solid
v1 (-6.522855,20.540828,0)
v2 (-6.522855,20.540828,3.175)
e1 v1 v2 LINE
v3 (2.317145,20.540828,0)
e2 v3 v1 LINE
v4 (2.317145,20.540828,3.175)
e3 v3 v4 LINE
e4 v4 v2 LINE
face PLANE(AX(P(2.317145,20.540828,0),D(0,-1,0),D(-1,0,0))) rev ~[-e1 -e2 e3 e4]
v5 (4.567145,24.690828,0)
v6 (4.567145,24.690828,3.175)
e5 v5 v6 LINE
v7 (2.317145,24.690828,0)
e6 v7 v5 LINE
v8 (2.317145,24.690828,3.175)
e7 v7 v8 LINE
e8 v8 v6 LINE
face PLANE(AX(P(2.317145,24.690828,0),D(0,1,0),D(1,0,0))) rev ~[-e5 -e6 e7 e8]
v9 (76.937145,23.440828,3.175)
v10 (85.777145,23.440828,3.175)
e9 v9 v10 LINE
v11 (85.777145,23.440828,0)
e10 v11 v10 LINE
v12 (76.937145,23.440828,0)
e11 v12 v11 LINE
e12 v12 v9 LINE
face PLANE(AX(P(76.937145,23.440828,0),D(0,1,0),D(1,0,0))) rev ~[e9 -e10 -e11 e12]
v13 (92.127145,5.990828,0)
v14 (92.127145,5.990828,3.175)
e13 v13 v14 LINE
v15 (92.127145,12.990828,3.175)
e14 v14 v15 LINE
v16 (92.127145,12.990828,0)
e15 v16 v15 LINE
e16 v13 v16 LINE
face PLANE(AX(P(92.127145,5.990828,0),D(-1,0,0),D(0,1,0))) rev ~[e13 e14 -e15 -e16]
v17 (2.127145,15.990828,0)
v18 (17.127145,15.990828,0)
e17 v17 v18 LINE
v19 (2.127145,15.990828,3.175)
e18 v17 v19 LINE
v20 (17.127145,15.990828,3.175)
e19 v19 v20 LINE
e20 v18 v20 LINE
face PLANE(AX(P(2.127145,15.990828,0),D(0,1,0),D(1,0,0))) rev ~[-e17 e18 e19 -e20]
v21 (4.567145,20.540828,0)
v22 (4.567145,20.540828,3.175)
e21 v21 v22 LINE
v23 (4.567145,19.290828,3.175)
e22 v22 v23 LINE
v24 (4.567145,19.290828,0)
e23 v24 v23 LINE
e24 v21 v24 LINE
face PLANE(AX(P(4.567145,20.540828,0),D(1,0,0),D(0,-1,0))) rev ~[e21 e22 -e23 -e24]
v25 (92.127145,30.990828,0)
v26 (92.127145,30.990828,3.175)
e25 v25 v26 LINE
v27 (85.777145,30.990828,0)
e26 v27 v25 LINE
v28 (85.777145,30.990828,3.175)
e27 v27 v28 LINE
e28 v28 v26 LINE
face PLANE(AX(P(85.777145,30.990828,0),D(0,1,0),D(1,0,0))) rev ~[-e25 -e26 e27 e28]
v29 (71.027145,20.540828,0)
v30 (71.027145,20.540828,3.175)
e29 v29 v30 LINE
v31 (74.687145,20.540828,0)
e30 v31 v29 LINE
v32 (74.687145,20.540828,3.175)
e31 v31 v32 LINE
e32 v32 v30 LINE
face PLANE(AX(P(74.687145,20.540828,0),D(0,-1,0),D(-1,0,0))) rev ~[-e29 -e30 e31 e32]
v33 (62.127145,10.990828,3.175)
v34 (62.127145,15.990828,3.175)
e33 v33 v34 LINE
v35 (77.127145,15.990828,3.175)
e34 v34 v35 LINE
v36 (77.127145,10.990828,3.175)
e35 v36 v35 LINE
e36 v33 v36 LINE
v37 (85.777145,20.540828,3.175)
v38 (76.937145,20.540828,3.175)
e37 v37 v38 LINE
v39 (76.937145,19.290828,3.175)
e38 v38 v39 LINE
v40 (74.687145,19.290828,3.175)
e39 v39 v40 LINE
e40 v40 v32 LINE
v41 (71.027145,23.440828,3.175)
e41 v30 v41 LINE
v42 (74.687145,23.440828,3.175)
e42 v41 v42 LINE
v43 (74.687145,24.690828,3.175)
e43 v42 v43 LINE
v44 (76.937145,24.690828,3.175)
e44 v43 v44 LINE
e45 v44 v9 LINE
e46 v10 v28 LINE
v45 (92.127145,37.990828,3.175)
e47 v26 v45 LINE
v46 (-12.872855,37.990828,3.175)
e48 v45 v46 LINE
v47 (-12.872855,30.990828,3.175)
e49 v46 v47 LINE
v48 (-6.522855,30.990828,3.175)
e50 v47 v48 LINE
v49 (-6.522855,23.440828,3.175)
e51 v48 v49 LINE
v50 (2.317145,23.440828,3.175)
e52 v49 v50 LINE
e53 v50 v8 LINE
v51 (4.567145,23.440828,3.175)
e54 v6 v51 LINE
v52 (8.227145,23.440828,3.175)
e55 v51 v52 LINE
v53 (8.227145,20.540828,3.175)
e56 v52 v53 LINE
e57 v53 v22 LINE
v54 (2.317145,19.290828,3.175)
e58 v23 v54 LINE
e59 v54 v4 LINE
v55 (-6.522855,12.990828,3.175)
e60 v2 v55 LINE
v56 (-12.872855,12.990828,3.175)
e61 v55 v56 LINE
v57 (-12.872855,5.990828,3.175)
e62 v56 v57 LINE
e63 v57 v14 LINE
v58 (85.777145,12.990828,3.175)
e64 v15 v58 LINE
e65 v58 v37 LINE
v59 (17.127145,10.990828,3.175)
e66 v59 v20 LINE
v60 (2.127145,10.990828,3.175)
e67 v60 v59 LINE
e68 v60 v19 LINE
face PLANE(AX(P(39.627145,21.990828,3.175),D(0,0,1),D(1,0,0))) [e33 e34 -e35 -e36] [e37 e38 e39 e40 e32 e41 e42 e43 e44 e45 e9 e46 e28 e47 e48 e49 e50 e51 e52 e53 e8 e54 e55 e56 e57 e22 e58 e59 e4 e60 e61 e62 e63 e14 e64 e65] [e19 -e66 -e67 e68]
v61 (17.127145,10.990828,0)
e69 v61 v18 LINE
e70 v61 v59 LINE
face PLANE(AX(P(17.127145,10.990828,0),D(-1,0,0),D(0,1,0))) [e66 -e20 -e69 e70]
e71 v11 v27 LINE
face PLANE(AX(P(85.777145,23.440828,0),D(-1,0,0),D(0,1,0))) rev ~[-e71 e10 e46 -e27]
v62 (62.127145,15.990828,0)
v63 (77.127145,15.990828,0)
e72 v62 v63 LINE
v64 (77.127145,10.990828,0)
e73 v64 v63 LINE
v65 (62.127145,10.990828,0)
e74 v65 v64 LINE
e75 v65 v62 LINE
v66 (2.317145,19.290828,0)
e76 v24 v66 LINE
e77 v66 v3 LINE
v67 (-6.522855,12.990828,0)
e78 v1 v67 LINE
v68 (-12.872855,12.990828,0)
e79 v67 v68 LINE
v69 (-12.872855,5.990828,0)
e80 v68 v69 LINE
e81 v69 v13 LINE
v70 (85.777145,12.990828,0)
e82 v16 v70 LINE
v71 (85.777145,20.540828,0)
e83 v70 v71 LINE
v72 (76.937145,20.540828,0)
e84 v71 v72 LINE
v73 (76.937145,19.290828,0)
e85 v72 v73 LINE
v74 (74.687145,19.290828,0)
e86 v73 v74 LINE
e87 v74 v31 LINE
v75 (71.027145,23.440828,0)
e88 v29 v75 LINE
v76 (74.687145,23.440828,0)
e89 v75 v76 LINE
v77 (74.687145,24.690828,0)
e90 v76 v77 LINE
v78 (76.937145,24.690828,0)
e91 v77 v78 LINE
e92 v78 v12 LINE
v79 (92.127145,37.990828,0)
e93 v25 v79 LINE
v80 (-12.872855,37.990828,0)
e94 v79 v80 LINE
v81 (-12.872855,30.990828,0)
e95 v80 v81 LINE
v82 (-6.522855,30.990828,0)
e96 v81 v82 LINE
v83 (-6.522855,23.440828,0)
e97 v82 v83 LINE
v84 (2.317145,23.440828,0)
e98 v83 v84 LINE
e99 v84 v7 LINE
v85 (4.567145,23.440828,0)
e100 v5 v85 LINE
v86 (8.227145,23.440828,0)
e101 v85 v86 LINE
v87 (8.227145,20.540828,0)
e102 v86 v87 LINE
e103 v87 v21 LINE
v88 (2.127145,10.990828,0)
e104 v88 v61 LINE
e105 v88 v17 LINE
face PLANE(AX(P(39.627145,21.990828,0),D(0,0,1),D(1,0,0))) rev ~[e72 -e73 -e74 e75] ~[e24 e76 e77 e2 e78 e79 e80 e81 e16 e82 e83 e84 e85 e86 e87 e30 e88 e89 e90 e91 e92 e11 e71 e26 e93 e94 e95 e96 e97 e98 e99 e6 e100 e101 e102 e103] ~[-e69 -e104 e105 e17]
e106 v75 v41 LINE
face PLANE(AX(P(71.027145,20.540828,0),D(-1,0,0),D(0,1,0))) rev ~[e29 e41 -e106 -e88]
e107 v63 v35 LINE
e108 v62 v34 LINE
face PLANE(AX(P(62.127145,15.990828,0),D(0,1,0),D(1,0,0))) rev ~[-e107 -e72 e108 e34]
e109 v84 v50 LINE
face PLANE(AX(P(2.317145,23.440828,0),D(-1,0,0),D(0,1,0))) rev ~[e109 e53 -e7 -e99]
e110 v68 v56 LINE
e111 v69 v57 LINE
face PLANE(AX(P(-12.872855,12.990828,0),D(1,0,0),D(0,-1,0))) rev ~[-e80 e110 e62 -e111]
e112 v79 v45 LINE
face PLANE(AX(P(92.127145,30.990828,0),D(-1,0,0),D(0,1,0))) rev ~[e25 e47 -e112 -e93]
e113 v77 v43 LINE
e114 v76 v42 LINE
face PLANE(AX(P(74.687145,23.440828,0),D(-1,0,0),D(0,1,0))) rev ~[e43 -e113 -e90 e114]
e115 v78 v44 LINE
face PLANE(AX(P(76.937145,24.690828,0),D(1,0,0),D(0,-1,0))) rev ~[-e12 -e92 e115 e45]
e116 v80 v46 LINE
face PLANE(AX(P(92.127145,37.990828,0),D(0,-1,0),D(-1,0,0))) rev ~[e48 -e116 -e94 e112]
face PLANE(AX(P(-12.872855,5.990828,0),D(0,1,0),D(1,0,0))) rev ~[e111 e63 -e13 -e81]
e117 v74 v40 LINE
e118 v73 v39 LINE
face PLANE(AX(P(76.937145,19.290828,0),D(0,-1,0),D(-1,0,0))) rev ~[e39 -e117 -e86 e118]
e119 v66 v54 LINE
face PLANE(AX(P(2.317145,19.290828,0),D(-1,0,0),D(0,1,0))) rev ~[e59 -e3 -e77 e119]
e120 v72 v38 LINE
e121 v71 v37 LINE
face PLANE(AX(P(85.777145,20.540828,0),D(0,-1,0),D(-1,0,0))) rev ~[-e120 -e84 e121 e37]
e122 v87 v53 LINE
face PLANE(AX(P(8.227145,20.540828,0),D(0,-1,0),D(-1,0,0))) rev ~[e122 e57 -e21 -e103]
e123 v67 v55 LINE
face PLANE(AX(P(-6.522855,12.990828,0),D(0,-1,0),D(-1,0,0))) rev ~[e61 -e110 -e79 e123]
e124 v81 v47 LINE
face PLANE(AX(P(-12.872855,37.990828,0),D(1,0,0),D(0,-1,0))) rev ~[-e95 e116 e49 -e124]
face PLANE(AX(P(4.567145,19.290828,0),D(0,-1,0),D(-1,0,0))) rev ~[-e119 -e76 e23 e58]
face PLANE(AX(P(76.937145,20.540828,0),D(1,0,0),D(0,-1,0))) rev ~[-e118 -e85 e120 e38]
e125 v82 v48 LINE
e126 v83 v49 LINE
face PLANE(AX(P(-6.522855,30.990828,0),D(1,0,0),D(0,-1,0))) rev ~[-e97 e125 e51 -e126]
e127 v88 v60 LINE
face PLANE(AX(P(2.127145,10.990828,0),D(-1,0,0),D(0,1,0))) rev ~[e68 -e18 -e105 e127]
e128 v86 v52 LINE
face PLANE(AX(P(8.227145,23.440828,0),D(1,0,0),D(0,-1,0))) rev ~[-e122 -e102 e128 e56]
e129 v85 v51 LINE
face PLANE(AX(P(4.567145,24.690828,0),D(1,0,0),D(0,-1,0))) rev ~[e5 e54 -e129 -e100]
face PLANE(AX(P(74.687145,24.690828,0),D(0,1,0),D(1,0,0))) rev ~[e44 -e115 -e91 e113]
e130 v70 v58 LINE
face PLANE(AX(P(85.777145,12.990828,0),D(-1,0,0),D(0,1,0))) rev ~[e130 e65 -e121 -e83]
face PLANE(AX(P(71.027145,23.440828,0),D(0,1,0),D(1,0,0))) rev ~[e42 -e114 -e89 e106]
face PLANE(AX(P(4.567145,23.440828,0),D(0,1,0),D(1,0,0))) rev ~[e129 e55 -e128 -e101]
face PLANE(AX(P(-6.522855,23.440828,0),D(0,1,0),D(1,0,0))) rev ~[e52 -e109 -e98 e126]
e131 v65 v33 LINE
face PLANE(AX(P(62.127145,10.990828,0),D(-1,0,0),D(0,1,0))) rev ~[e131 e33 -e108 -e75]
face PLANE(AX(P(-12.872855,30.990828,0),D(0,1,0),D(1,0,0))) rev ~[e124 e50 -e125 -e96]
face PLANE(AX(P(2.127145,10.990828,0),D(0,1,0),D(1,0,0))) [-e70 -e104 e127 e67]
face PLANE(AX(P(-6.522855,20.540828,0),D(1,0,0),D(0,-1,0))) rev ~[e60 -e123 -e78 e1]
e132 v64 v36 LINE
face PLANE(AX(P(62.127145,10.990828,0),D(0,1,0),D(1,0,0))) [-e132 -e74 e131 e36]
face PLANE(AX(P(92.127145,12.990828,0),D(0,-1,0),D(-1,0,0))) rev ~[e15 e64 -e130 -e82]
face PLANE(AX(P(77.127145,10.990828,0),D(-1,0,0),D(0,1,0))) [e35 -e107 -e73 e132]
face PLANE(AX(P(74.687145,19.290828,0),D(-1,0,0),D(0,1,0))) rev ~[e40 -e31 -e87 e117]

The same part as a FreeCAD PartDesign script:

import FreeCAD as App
import Part
import Sketcher
from FreeCAD import Vector


def add_polygon(sketch, points):
    """Adds a closed chain of lines whose ends are joined by coincident constraints."""
    first, n = sketch.GeometryCount, len(points)
    for a, b in zip(points, points[1:] + points[:1]):
        sketch.addGeometry(Part.LineSegment(App.Vector(*a, 0), App.Vector(*b, 0)), False)
    for i in range(n):
        sketch.addConstraint(Sketcher.Constraint("Coincident", first + i, 2, first + (i + 1) % n, 1))

doc = App.newDocument("Part")
body = doc.addObject("PartDesign::Body", "Body")

# Sketch on XY plane
sketch1 = body.newObject("Sketcher::SketchObject", "Sketch")
sketch1.AttachmentSupport = (doc.getObject("XY_Plane"), [""])
sketch1.MapMode = "FlatFace"
add_polygon(sketch1, [(92.1, 6), (92.1, 13), (85.8, 13), (85.8, 20.5), (76.9, 20.5), (76.9, 19.3), (74.7, 19.3), (74.7, 20.5), (71, 20.5), (71, 23.4), (74.7, 23.4), (74.7, 24.7), (76.9, 24.7), (76.9, 23.4), (85.8, 23.4), (85.8, 31), (92.1, 31), (92.1, 38), (-12.9, 38), (-12.9, 31), (-6.5, 31), (-6.5, 23.4), (2.3, 23.4), (2.3, 24.7), (4.6, 24.7), (4.6, 23.4), (8.2, 23.4), (8.2, 20.5), (4.6, 20.5), (4.6, 19.3), (2.3, 19.3), (2.3, 20.5), (-6.5, 20.5), (-6.5, 13), (-12.9, 13), (-12.9, 6)])  # lines 0-35
add_polygon(sketch1, [(17.1, 11), (2.1, 11), (2.1, 16), (17.1, 16)])  # lines 36-39
add_polygon(sketch1, [(77.1, 11), (62.1, 11), (62.1, 16), (77.1, 16)])  # lines 40-43
sketch1.addConstraint([
    Sketcher.Constraint("Vertical", 0),
    Sketcher.Constraint("Horizontal", 1),
    Sketcher.Constraint("Vertical", 2),
    Sketcher.Constraint("Horizontal", 3),
    Sketcher.Constraint("Vertical", 4),
    Sketcher.Constraint("Horizontal", 5),
    Sketcher.Constraint("Vertical", 6),
    Sketcher.Constraint("Horizontal", 7),
    Sketcher.Constraint("Vertical", 8),
    Sketcher.Constraint("Horizontal", 9),
    Sketcher.Constraint("Vertical", 10),
    Sketcher.Constraint("Horizontal", 11),
    Sketcher.Constraint("Vertical", 12),
    Sketcher.Constraint("Horizontal", 13),
    Sketcher.Constraint("Vertical", 14),
    Sketcher.Constraint("Horizontal", 15),
    Sketcher.Constraint("Vertical", 16),
    Sketcher.Constraint("Horizontal", 17),
    Sketcher.Constraint("Vertical", 18),
    Sketcher.Constraint("Horizontal", 19),
    Sketcher.Constraint("Vertical", 20),
    Sketcher.Constraint("Horizontal", 21),
    Sketcher.Constraint("Vertical", 22),
    Sketcher.Constraint("Horizontal", 23),
    Sketcher.Constraint("Vertical", 24),
    Sketcher.Constraint("Horizontal", 25),
    Sketcher.Constraint("Vertical", 26),
    Sketcher.Constraint("Horizontal", 27),
    Sketcher.Constraint("Vertical", 28),
    Sketcher.Constraint("Horizontal", 29),
    Sketcher.Constraint("Vertical", 30),
    Sketcher.Constraint("Horizontal", 31),
    Sketcher.Constraint("Vertical", 32),
    Sketcher.Constraint("Horizontal", 33),
    Sketcher.Constraint("Vertical", 34),
    Sketcher.Constraint("Horizontal", 35),
    Sketcher.Constraint("Horizontal", 36),
    Sketcher.Constraint("Vertical", 37),
    Sketcher.Constraint("Horizontal", 38),
    Sketcher.Constraint("Vertical", 39),
    Sketcher.Constraint("Horizontal", 40),
    Sketcher.Constraint("Vertical", 41),
    Sketcher.Constraint("Horizontal", 42),
    Sketcher.Constraint("Vertical", 43),
    Sketcher.Constraint("Horizontal", 3, 2, 6, 2),
    Sketcher.Constraint("Horizontal", 9, 2, 12, 2),
    Sketcher.Constraint("Horizontal", 15, 2, 18, 2),
    Sketcher.Constraint("Horizontal", 13, 2, 20, 2),
    Sketcher.Constraint("Horizontal", 11, 2, 22, 2),
    Sketcher.Constraint("Horizontal", 21, 2, 24, 2),
    Sketcher.Constraint("Horizontal", 7, 2, 26, 2),
    Sketcher.Constraint("Horizontal", 5, 2, 28, 2),
    Sketcher.Constraint("Horizontal", 27, 2, 30, 2),
    Sketcher.Constraint("Horizontal", 1, 2, 32, 2),
    Sketcher.Constraint("Horizontal", 39, 2, 40, 2),
    Sketcher.Constraint("Horizontal", 38, 2, 41, 2),
    Sketcher.Constraint("Vertical", 6, 2, 9, 2),
    Sketcher.Constraint("Vertical", 4, 2, 11, 2),
    Sketcher.Constraint("Vertical", 2, 2, 13, 2),
    Sketcher.Constraint("Vertical", 0, 2, 15, 2),
    Sketcher.Constraint("Vertical", 24, 2, 27, 2),
    Sketcher.Constraint("Vertical", 22, 2, 29, 2),
    Sketcher.Constraint("Vertical", 20, 2, 31, 2),
    Sketcher.Constraint("Vertical", 18, 2, 33, 2),
    Sketcher.Constraint("Equal", 15, 19),
    Sketcher.Constraint("Equal", 13, 21),
    Sketcher.Constraint("Equal", 11, 23),
    Sketcher.Constraint("Equal", 9, 25),
    Sketcher.Constraint("Equal", 38, 40),
    Sketcher.Constraint("Equal", 6, 10),
    Sketcher.Constraint("Equal", 2, 14),
    Sketcher.Constraint("Equal", 0, 16),
    Sketcher.Constraint("DistanceX", 17, 2, 17, 1, 105.0),
    Sketcher.Constraint("DistanceX", 36, 2, 36, 1, 15.0),
    Sketcher.Constraint("DistanceY", 0, 1, 0, 2, 7.0),
    Sketcher.Constraint("DistanceY", 37, 1, 37, 2, 5.0),
    Sketcher.Constraint("DistanceY", 8, 1, 8, 2, 2.9),
    Sketcher.Constraint("DistanceY", 36, 2, 32, 2, 2.0),
    Sketcher.Constraint("DistanceX", 1, 2, 1, 1, 6.35),
    Sketcher.Constraint("DistanceX", 3, 2, 3, 1, 8.84),
    Sketcher.Constraint("DistanceX", 5, 2, 5, 1, 2.25),
    Sketcher.Constraint("DistanceX", 7, 2, 7, 1, 3.66),
    Sketcher.Constraint("DistanceY", 2, 1, 2, 2, 7.55),
    Sketcher.Constraint("DistanceY", 4, 2, 4, 1, 1.25),
    Sketcher.Constraint("DistanceX", 26, 2, 38, 2, 8.9),
    Sketcher.Constraint("DistanceX", 40, 2, 7, 2, 8.9),
    Sketcher.Constraint("DistanceY", -1, 1, 0, 2, 12.990828),
    Sketcher.Constraint("DistanceX", -1, 1, 0, 2, 92.127145),
])
pad1 = body.newObject("PartDesign::Pad", "Pad")
pad1.Profile = sketch1
pad1.Length = 3.175

doc.recompute()
